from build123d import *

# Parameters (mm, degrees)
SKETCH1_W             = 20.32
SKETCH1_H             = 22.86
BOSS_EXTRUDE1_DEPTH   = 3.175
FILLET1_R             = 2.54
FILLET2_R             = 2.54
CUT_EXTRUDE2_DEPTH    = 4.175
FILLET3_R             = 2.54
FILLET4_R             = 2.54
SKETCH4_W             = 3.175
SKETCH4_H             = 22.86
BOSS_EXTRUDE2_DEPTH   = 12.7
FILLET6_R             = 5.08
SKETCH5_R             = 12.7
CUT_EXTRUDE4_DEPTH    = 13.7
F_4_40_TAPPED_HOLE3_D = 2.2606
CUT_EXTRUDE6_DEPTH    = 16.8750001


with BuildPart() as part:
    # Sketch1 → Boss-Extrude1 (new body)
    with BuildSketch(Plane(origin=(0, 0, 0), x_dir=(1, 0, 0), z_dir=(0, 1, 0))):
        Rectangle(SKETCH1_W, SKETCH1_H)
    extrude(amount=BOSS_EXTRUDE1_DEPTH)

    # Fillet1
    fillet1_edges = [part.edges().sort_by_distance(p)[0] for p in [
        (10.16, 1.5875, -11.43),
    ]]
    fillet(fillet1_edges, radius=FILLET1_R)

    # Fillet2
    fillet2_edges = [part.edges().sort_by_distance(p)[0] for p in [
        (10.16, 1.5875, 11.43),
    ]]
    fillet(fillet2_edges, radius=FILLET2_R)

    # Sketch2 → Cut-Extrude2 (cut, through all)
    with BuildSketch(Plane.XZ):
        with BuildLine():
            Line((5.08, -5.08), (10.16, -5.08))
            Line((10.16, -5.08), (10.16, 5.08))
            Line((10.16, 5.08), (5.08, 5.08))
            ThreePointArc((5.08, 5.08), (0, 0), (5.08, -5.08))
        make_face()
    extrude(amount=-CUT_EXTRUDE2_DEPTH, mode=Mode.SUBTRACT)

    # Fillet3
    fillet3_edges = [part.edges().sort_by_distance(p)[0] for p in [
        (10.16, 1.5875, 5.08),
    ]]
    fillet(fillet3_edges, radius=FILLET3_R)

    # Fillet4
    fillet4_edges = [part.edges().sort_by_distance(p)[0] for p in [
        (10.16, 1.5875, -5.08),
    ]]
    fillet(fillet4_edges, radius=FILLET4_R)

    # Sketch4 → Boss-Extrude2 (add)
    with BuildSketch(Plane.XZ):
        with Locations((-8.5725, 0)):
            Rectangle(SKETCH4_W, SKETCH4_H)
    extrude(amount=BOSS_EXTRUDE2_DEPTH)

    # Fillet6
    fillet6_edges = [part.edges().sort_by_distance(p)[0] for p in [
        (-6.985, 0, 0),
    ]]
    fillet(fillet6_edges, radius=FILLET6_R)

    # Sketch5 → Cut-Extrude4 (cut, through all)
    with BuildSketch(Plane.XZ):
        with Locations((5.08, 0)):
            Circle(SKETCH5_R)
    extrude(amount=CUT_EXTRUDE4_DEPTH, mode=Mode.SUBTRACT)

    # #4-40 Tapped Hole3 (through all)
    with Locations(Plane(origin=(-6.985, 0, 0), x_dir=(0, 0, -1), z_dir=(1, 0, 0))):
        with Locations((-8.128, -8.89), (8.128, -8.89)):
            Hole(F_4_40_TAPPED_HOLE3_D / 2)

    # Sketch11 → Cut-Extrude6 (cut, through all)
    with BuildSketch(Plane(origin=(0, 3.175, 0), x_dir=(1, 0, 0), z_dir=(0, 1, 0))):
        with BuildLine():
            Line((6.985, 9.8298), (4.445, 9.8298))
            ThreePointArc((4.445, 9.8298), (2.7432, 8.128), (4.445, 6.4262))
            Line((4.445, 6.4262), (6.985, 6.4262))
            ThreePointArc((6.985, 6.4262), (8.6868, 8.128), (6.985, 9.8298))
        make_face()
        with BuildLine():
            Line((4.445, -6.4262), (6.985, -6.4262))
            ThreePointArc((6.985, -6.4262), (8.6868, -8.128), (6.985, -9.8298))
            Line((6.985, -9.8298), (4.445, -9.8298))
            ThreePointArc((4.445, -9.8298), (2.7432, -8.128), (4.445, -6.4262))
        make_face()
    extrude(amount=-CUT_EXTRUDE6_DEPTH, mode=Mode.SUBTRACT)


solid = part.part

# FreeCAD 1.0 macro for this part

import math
import FreeCAD as App
import Part
import Sketcher
Q = App.Units.Quantity


def edges_at(feature, points):
    """Names of the edges that pass closest to the given points."""
    edges = feature.Shape.Edges
    near = lambda p: min(range(len(edges)), key=lambda i: edges[i].distToShape(Part.Vertex(*p))[0])
    return sorted({f"Edge{near(p) + 1}" for p in points})

doc = App.newDocument("Part")
body = doc.addObject("PartDesign::Body", "Body")

# Sketch on XZ plane
sketch1 = body.newObject("Sketcher::SketchObject", "Sketch")
sketch1.AttachmentSupport = (doc.getObject("XZ_Plane"), [""])
sketch1.MapMode = "FlatFace"
sketch1.addGeometry([
    Part.LineSegment(App.Vector(-10, -11, 0), App.Vector(-10, 11, 0)),
    Part.LineSegment(App.Vector(-10, 11, 0), App.Vector(10, 11, 0)),
    Part.LineSegment(App.Vector(10, 11, 0), App.Vector(10, -11, 0)),
    Part.LineSegment(App.Vector(10, -11, 0), App.Vector(-10, -11, 0)),
], False)
sketch1.addConstraint([
    Sketcher.Constraint("Coincident", 0, 2, 1, 1),
    Sketcher.Constraint("Coincident", 1, 2, 2, 1),
    Sketcher.Constraint("Coincident", 2, 2, 3, 1),
    Sketcher.Constraint("Coincident", 3, 2, 0, 1),
    Sketcher.Constraint("Vertical", 0),
    Sketcher.Constraint("Horizontal", 1),
    Sketcher.Constraint("Vertical", 2),
    Sketcher.Constraint("Horizontal", 3),
    Sketcher.Constraint("Symmetric", 0, 2, 2, 2, -1, 1),
    Sketcher.Constraint("DistanceX", 1, 1, 1, 2, Q("0.8 in")),
    Sketcher.Constraint("DistanceY", 0, 1, 0, 2, Q("0.9 in")),
])
pad1 = body.newObject("PartDesign::Pad", "Pad")
pad1.Profile = sketch1
pad1.Length = Q("0.125 in")
pad1.Reversed = True
doc.recompute()

fillet = body.newObject("PartDesign::Fillet", "Fillet")
fillet.Base = (pad1, edges_at(pad1, [(10.16, 1.587, -11.43)]))
fillet.Radius = Q("0.1 in")
doc.recompute()

fillet2 = body.newObject("PartDesign::Fillet", "Fillet001")
fillet2.Base = (fillet, edges_at(fillet, [(10.16, 1.587, 11.43)]))
fillet2.Radius = Q("0.1 in")

# Sketch on XZ plane
sketch2 = body.newObject("Sketcher::SketchObject", "Sketch001")
sketch2.AttachmentSupport = (doc.getObject("XZ_Plane"), [""])
sketch2.MapMode = "FlatFace"
sketch2.addGeometry([
    Part.LineSegment(App.Vector(5, -5, 0), App.Vector(10, -5, 0)),
    Part.LineSegment(App.Vector(10, -5, 0), App.Vector(10, 5, 0)),
    Part.LineSegment(App.Vector(10, 5, 0), App.Vector(5, 5, 0)),
    Part.ArcOfCircle(Part.Circle(App.Vector(5, 0, 0), App.Vector(0, 0, 1), 5), math.radians(90), math.radians(270)),
], False)
sketch2.addConstraint([
    Sketcher.Constraint("Coincident", 0, 2, 1, 1),
    Sketcher.Constraint("Coincident", 1, 2, 2, 1),
    Sketcher.Constraint("Tangent", 2, 2, 3, 1),
    Sketcher.Constraint("Tangent", 3, 2, 0, 1),
    Sketcher.Constraint("Horizontal", 0),
    Sketcher.Constraint("Vertical", 1),
    Sketcher.Constraint("Horizontal", 2),
    Sketcher.Constraint("PointOnObject", 3, 3, -1),
    Sketcher.Constraint("Radius", 3, Q("0.2 in")),
    Sketcher.Constraint("DistanceX", 0, 1, 0, 2, Q("0.2 in")),
    Sketcher.Constraint("DistanceX", -1, 1, 3, 3, Q("0.2 in")),
])
pocket1 = body.newObject("PartDesign::Pocket", "Pocket")
pocket1.Profile = sketch2
pocket1.Type = "ThroughAll"
doc.recompute()

fillet3 = body.newObject("PartDesign::Fillet", "Fillet002")
fillet3.Base = (pocket1, edges_at(pocket1, [(10.16, 1.587, 5.08)]))
fillet3.Radius = Q("0.1 in")
doc.recompute()

fillet4 = body.newObject("PartDesign::Fillet", "Fillet003")
fillet4.Base = (fillet3, edges_at(fillet3, [(10.16, 1.587, -5.08)]))
fillet4.Radius = Q("0.1 in")

# Sketch on XZ plane
sketch3 = body.newObject("Sketcher::SketchObject", "Sketch002")
sketch3.AttachmentSupport = (doc.getObject("XZ_Plane"), [""])
sketch3.MapMode = "FlatFace"
sketch3.addGeometry([
    Part.LineSegment(App.Vector(-10.2, 11.4, 0), App.Vector(-10.2, -11.4, 0)),
    Part.LineSegment(App.Vector(-10.2, -11.4, 0), App.Vector(-7, -11.4, 0)),
    Part.LineSegment(App.Vector(-7, -11.4, 0), App.Vector(-7, 11.4, 0)),
    Part.LineSegment(App.Vector(-7, 11.4, 0), App.Vector(-10.2, 11.4, 0)),
], False)
sketch3.addConstraint([
    Sketcher.Constraint("Coincident", 0, 2, 1, 1),
    Sketcher.Constraint("Coincident", 1, 2, 2, 1),
    Sketcher.Constraint("Coincident", 2, 2, 3, 1),
    Sketcher.Constraint("Coincident", 3, 2, 0, 1),
    Sketcher.Constraint("Vertical", 0),
    Sketcher.Constraint("Horizontal", 1),
    Sketcher.Constraint("Vertical", 2),
    Sketcher.Constraint("Horizontal", 3),
    Sketcher.Constraint("DistanceY", 0, 2, 0, 1, Q("0.9 in")),
    Sketcher.Constraint("DistanceX", 0, 2, -1, 1, Q("0.4 in")),
    Sketcher.Constraint("DistanceX", 1, 1, 1, 2, Q("0.125 in")),
    Sketcher.Constraint("DistanceY", 0, 2, -1, 1, Q("0.45 in")),
])
pad2 = body.newObject("PartDesign::Pad", "Pad001")
pad2.Profile = sketch3
pad2.Length = Q("0.5 in")
doc.recompute()

fillet5 = body.newObject("PartDesign::Fillet", "Fillet004")
fillet5.Base = (pad2, edges_at(pad2, [(-6.985, 0, 0)]))
fillet5.Radius = Q("0.2 in")

# Sketch on XZ plane
sketch4 = body.newObject("Sketcher::SketchObject", "Sketch003")
sketch4.AttachmentSupport = (doc.getObject("XZ_Plane"), [""])
sketch4.MapMode = "FlatFace"
sketch4.addGeometry(Part.Circle(App.Vector(5, 0, 0), App.Vector(0, 0, 1), 13), False)
sketch4.addConstraint([
    Sketcher.Constraint("PointOnObject", 0, 3, -1),
    Sketcher.Constraint("Diameter", 0, Q("1 in")),
    Sketcher.Constraint("DistanceX", -1, 1, 0, 3, Q("0.2 in")),
])
pocket2 = body.newObject("PartDesign::Pocket", "Pocket001")
pocket2.Profile = sketch4
pocket2.Type = "ThroughAll"
pocket2.Reversed = True

# Sketch on YZ plane
sketch5 = body.newObject("Sketcher::SketchObject", "Sketch004")
sketch5.AttachmentSupport = (doc.getObject("YZ_Plane"), [""])
sketch5.MapMode = "FlatFace"
sketch5.AttachmentOffset = App.Placement(App.Vector(0, 0, -0.275 * 25.4), App.Rotation())
sketch5.addGeometry([
    Part.Circle(App.Vector(-8.9, 8.1, 0), App.Vector(0, 0, 1), 1.1),
    Part.Circle(App.Vector(-8.9, -8.1, 0), App.Vector(0, 0, 1), 1.1),
], False)
sketch5.addConstraint([
    Sketcher.Constraint("Equal", 0, 1),
    Sketcher.Constraint("Symmetric", 0, 3, 1, 3, -1),
    Sketcher.Constraint("Diameter", 0, Q("0.089 in")),
    Sketcher.Constraint("DistanceX", 0, 3, -1, 1, Q("0.35 in")),
    Sketcher.Constraint("DistanceY", -1, 1, 0, 3, Q("0.32 in")),
])
doc.recompute()
hole = body.newObject("PartDesign::Hole", "Hole")
hole.Profile = sketch5
hole.ThreadType = "None"
hole.Diameter = Q("0.089 in")
hole.DepthType = "ThroughAll"

# Sketch on XZ plane
sketch6 = body.newObject("Sketcher::SketchObject", "Sketch005")
sketch6.AttachmentSupport = (doc.getObject("XZ_Plane"), [""])
sketch6.MapMode = "FlatFace"
sketch6.AttachmentOffset = App.Placement(App.Vector(0, 0, -0.125 * 25.4), App.Rotation())
sketch6.addGeometry([
    Part.LineSegment(App.Vector(7, -9.8, 0), App.Vector(4.4, -9.8, 0)),  # 0
    Part.ArcOfCircle(Part.Circle(App.Vector(4.4, -8.1, 0), App.Vector(0, 0, 1), 1.7), math.radians(90), math.radians(270)),  # 1
    Part.LineSegment(App.Vector(4.4, -6.4, 0), App.Vector(7, -6.4, 0)),  # 2
    Part.ArcOfCircle(Part.Circle(App.Vector(7, -8.1, 0), App.Vector(0, 0, 1), 1.7), math.radians(-90), math.radians(90)),  # 3
    Part.LineSegment(App.Vector(7, 6.4, 0), App.Vector(4.4, 6.4, 0)),  # 4
    Part.ArcOfCircle(Part.Circle(App.Vector(4.4, 8.1, 0), App.Vector(0, 0, 1), 1.7), math.radians(90), math.radians(270)),  # 5
    Part.LineSegment(App.Vector(4.4, 9.8, 0), App.Vector(7, 9.8, 0)),  # 6
    Part.ArcOfCircle(Part.Circle(App.Vector(7, 8.1, 0), App.Vector(0, 0, 1), 1.7), math.radians(-90), math.radians(90)),  # 7
], False)
sketch6.addConstraint([
    Sketcher.Constraint("Tangent", 0, 2, 1, 2),
    Sketcher.Constraint("Tangent", 1, 1, 2, 1),
    Sketcher.Constraint("Tangent", 2, 2, 3, 2),
    Sketcher.Constraint("Tangent", 3, 1, 0, 1),
    Sketcher.Constraint("Tangent", 4, 2, 5, 2),
    Sketcher.Constraint("Tangent", 5, 1, 6, 1),
    Sketcher.Constraint("Tangent", 6, 2, 7, 2),
    Sketcher.Constraint("Tangent", 7, 1, 4, 1),
    Sketcher.Constraint("Horizontal", 0),
    Sketcher.Constraint("Horizontal", 2),
    Sketcher.Constraint("Horizontal", 4),
    Sketcher.Constraint("Horizontal", 6),
    Sketcher.Constraint("Equal", 3, 5),
    Sketcher.Constraint("Symmetric", 1, 3, 5, 3, -1),
    Sketcher.Constraint("Vertical", 3, 3, 7, 3),
    Sketcher.Constraint("DistanceX", 0, 2, 0, 1, Q("0.1 in")),
    Sketcher.Constraint("Radius", 1, Q("0.067 in")),
    Sketcher.Constraint("DistanceY", 1, 3, -1, 1, Q("0.32 in")),
    Sketcher.Constraint("DistanceX", -1, 1, 1, 3, Q("0.175 in")),
])
pocket3 = body.newObject("PartDesign::Pocket", "Pocket002")
pocket3.Profile = sketch6
pocket3.Type = "ThroughAll"
pocket3.Reversed = True

doc.recompute()
